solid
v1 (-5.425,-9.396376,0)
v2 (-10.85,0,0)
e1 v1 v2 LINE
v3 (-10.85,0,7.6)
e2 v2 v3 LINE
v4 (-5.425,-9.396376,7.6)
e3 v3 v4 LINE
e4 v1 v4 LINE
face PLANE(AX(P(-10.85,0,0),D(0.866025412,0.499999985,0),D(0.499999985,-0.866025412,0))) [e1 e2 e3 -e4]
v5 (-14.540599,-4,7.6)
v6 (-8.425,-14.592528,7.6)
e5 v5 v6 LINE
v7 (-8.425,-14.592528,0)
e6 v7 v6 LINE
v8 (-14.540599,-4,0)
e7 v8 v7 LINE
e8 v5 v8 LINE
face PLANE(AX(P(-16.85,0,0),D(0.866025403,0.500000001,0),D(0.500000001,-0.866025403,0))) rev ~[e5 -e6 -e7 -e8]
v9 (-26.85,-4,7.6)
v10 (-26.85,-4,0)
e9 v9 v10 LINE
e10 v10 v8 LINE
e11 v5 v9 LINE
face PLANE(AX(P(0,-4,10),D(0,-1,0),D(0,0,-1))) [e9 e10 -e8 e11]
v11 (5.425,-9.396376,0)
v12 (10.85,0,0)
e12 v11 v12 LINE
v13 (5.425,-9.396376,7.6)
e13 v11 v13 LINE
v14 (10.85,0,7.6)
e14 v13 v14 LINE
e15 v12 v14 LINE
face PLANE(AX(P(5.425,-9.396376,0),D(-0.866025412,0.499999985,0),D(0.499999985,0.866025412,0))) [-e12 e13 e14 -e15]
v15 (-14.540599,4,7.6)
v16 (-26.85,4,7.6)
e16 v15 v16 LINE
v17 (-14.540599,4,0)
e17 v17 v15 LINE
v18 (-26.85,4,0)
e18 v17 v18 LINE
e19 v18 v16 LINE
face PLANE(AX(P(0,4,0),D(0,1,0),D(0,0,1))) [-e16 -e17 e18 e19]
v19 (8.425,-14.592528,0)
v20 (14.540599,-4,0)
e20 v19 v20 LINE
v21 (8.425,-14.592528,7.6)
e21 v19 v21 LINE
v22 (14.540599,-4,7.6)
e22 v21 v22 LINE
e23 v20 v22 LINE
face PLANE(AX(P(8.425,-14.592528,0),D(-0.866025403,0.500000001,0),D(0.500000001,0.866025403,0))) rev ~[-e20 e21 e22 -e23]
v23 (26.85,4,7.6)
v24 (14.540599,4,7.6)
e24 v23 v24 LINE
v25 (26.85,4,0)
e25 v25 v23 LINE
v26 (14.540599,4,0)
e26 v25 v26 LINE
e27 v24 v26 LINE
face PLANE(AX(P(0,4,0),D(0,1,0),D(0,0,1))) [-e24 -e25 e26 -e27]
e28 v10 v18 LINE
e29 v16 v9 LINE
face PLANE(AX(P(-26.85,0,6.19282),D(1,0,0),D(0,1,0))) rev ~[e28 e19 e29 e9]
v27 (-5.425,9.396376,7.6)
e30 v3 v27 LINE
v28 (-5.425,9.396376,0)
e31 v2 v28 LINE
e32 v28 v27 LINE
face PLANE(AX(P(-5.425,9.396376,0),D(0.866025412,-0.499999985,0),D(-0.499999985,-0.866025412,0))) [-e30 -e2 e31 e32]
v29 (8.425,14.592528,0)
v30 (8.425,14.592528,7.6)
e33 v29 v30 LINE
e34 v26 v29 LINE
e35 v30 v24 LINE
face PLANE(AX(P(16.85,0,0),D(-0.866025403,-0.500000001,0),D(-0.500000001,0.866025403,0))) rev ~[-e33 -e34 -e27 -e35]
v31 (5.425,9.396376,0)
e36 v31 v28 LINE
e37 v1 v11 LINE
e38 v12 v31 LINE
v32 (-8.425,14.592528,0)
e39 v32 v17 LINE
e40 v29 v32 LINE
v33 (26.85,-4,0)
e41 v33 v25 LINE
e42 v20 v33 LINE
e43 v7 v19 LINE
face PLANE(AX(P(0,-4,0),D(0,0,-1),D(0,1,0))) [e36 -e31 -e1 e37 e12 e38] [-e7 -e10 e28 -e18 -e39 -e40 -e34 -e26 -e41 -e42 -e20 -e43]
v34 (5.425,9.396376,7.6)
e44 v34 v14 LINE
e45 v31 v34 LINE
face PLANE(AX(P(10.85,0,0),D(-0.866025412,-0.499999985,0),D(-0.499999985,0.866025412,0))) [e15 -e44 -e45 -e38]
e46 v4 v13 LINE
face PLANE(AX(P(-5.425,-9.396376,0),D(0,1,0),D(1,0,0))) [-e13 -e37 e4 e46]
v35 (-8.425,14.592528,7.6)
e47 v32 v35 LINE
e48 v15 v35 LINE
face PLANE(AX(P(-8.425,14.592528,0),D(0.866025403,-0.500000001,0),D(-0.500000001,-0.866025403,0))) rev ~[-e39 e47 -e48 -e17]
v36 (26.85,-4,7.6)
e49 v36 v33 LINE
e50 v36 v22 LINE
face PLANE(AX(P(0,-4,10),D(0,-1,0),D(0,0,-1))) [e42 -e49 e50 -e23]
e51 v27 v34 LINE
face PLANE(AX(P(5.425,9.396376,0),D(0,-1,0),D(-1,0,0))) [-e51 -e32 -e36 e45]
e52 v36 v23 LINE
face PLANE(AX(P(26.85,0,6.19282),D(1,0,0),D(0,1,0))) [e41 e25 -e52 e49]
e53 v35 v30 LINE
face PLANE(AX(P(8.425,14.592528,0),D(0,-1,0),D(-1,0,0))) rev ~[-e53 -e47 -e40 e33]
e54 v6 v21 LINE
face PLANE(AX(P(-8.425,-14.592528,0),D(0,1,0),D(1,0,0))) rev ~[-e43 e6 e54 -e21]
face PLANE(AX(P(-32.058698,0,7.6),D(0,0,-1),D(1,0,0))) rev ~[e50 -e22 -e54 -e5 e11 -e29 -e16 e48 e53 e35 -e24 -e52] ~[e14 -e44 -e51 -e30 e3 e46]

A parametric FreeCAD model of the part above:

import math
import FreeCAD as App
import Part
import Sketcher
Q = App.Units.Quantity


def add_polygon(sketch, points):
    """Adds a closed chain of lines whose ends are joined by coincident constraints."""
    first, n = sketch.GeometryCount, len(points)
    for a, b in zip(points, points[1:] + points[:1]):
        sketch.addGeometry(Part.LineSegment(App.Vector(*a, 0), App.Vector(*b, 0)), False)
    for i in range(n):
        sketch.addConstraint(Sketcher.Constraint("Coincident", first + i, 2, first + (i + 1) % n, 1))

doc = App.newDocument("Part")
body = doc.addObject("PartDesign::Body", "Body")

# Sketch on XY plane
sketch1 = body.newObject("Sketcher::SketchObject", "Sketch")
sketch1.AttachmentSupport = (doc.getObject("XY_Plane"), [""])
sketch1.MapMode = "FlatFace"
add_polygon(sketch1, [(17, 0), (8, 15), (-8, 15), (-17, 0), (-8, -15), (8, -15)])  # lines 0-5
add_polygon(sketch1, [(5, 9), (11, 0), (5, -9), (-5, -9), (-11, 0), (-5, 9)])  # lines 6-11
sketch1.addConstraint(Sketcher.Constraint("Horizontal", 1))
sketch1.addConstraint(Sketcher.Constraint("Horizontal", 4))
sketch1.addConstraint(Sketcher.Constraint("Horizontal", 8))
sketch1.addConstraint(Sketcher.Constraint("Horizontal", 11))
sketch1.addConstraint(Sketcher.Constraint("Symmetric", 0, 2, 3, 2, -1, 1))
sketch1.addConstraint(Sketcher.Constraint("Symmetric", 2, 2, 5, 2, -1, 1))
sketch1.addConstraint(Sketcher.Constraint("Symmetric", 6, 2, 9, 2, -1, 1))
sketch1.addConstraint(Sketcher.Constraint("Symmetric", 7, 2, 10, 2, -1, 1))
sketch1.addConstraint(Sketcher.Constraint("PointOnObject", 2, 2, -1))
sketch1.addConstraint(Sketcher.Constraint("PointOnObject", 6, 2, -1))
sketch1.addConstraint(Sketcher.Constraint("Parallel", 2, 5))
sketch1.addConstraint(Sketcher.Constraint("Parallel", 3, 6))
sketch1.addConstraint(Sketcher.Constraint("Parallel", 5, 7))
sketch1.addConstraint(Sketcher.Constraint("Parallel", 6, 9))
sketch1.addConstraint(Sketcher.Constraint("Vertical", 1, 2, 3, 2))
sketch1.addConstraint(Sketcher.Constraint("Angle", 0, Q("120 deg")))
sketch1.addConstraint(Sketcher.Constraint("DistanceX", 6, 2, 5, 2, Q("6 mm")))
sketch1.addConstraint(Sketcher.Constraint("DistanceX", 7, 2, 4, 2, Q("3 mm")))
sketch1.addConstraint(Sketcher.Constraint("DistanceX", 1, 2, 1, 1, Q("16.85 mm")))
sketch1.addConstraint(Sketcher.Constraint("DistanceX", 2, 2, 5, 2, Q("33.7 mm")))
pad1 = body.newObject("PartDesign::Pad", "Pad")
pad1.Profile = sketch1
pad1.Length = 10

# Sketch on YZ plane
sketch2 = body.newObject("Sketcher::SketchObject", "Sketch001")
sketch2.AttachmentSupport = (doc.getObject("YZ_Plane"), [""])
sketch2.MapMode = "FlatFace"
sketch2.addGeometry(Part.ArcOfCircle(Part.Circle(App.Vector(0, 10, 0), App.Vector(0, 0, 1), 4), math.radians(0), math.radians(180)), False)
sketch2.addGeometry(Part.LineSegment(App.Vector(-4, 10, 0), App.Vector(-4, 0, 0)), False)
sketch2.addGeometry(Part.LineSegment(App.Vector(-4, 0, 0), App.Vector(4, 0, 0)), False)
sketch2.addGeometry(Part.LineSegment(App.Vector(4, 0, 0), App.Vector(4, 10, 0)), False)
sketch2.addConstraint(Sketcher.Constraint("Tangent", 0, 2, 1, 1))
sketch2.addConstraint(Sketcher.Constraint("Coincident", 1, 2, 2, 1))
sketch2.addConstraint(Sketcher.Constraint("Coincident", 2, 2, 3, 1))
sketch2.addConstraint(Sketcher.Constraint("Tangent", 3, 2, 0, 1))
sketch2.addConstraint(Sketcher.Constraint("Vertical", 1))
sketch2.addConstraint(Sketcher.Constraint("Horizontal", 2))
sketch2.addConstraint(Sketcher.Constraint("Vertical", 3))
sketch2.addConstraint(Sketcher.Constraint("Symmetric", 1, 2, 2, 2, -1, 1))
sketch2.addConstraint(Sketcher.Constraint("Radius", 0, Q("4 mm")))
sketch2.addConstraint(Sketcher.Constraint("DistanceY", 1, 2, 1, 1, Q("10 mm")))
pad2 = body.newObject("PartDesign::Pad", "Pad001")
pad2.Profile = sketch2
pad2.Length = 53.7
pad2.Midplane = True

# Sketch on XY plane
sketch3 = body.newObject("Sketcher::SketchObject", "Sketch002")
sketch3.AttachmentSupport = (doc.getObject("XY_Plane"), [""])
sketch3.MapMode = "FlatFace"
add_polygon(sketch3, [(11, 0), (5, 9), (-5, 9), (-11, 0), (-5, -9), (5, -9)])  # lines 0-5
sketch3.addConstraint(Sketcher.Constraint("Horizontal", 1))
sketch3.addConstraint(Sketcher.Constraint("Horizontal", 4))
sketch3.addConstraint(Sketcher.Constraint("Symmetric", 0, 2, 3, 2, -1, 1))
sketch3.addConstraint(Sketcher.Constraint("Symmetric", 2, 2, 5, 2, -1, 1))
sketch3.addConstraint(Sketcher.Constraint("PointOnObject", 2, 2, -1))
sketch3.addConstraint(Sketcher.Constraint("Parallel", 2, 5))
sketch3.addConstraint(Sketcher.Constraint("Vertical", 1, 2, 3, 2))
sketch3.addConstraint(Sketcher.Constraint("Angle", 0, Q("119.999999 deg")))
sketch3.addConstraint(Sketcher.Constraint("DistanceX", 1, 2, 1, 1, Q("10.85 mm")))
sketch3.addConstraint(Sketcher.Constraint("DistanceX", 2, 2, 5, 2, Q("21.7 mm")))
pocket1 = body.newObject("PartDesign::Pocket", "Pocket")
pocket1.Profile = sketch3
pocket1.Type = "ThroughAll"
pocket1.Midplane = True

# Sketch on XZ plane
sketch4 = body.newObject("Sketcher::SketchObject", "Sketch003")
sketch4.AttachmentSupport = (doc.getObject("XZ_Plane"), [""])
sketch4.MapMode = "FlatFace"
add_polygon(sketch4, [(-40, 26), (-40, -10), (42, -10), (42, 26)])  # lines 0-3
add_polygon(sketch4, [(31, -2), (-32, -2), (-32, 8), (31, 8)])  # lines 4-7
sketch4.addConstraint(Sketcher.Constraint("Vertical", 0))
sketch4.addConstraint(Sketcher.Constraint("Horizontal", 1))
sketch4.addConstraint(Sketcher.Constraint("Vertical", 2))
sketch4.addConstraint(Sketcher.Constraint("Horizontal", 3))
sketch4.addConstraint(Sketcher.Constraint("Horizontal", 4))
sketch4.addConstraint(Sketcher.Constraint("Vertical", 5))
sketch4.addConstraint(Sketcher.Constraint("Horizontal", 6))
sketch4.addConstraint(Sketcher.Constraint("Vertical", 7))
sketch4.addConstraint(Sketcher.Constraint("DistanceY", -1, 1, 5, 2, Q("7.6 mm")))
sketch4.addConstraint(Sketcher.Constraint("DistanceX", 1, 1, 1, 2, Q("82.61631 mm")))
sketch4.addConstraint(Sketcher.Constraint("DistanceY", 0, 2, 0, 1, Q("35.698411 mm")))
sketch4.addConstraint(Sketcher.Constraint("DistanceX", 4, 2, -1, 1, Q("32.058698 mm")))
sketch4.addConstraint(Sketcher.Constraint("DistanceX", 0, 2, 4, 2, Q("8.4075 mm")))
sketch4.addConstraint(Sketcher.Constraint("DistanceX", 4, 2, 4, 1, Q("63.407177 mm")))
sketch4.addConstraint(Sketcher.Constraint("DistanceY", 5, 1, 5, 2, Q("9.483432 mm")))
sketch4.addConstraint(Sketcher.Constraint("DistanceY", 0, 2, -1, 1, Q("9.759749 mm")))
pocket2 = body.newObject("PartDesign::Pocket", "Pocket001")
pocket2.Profile = sketch4
pocket2.Type = "ThroughAll"
pocket2.Midplane = True

doc.recompute()
